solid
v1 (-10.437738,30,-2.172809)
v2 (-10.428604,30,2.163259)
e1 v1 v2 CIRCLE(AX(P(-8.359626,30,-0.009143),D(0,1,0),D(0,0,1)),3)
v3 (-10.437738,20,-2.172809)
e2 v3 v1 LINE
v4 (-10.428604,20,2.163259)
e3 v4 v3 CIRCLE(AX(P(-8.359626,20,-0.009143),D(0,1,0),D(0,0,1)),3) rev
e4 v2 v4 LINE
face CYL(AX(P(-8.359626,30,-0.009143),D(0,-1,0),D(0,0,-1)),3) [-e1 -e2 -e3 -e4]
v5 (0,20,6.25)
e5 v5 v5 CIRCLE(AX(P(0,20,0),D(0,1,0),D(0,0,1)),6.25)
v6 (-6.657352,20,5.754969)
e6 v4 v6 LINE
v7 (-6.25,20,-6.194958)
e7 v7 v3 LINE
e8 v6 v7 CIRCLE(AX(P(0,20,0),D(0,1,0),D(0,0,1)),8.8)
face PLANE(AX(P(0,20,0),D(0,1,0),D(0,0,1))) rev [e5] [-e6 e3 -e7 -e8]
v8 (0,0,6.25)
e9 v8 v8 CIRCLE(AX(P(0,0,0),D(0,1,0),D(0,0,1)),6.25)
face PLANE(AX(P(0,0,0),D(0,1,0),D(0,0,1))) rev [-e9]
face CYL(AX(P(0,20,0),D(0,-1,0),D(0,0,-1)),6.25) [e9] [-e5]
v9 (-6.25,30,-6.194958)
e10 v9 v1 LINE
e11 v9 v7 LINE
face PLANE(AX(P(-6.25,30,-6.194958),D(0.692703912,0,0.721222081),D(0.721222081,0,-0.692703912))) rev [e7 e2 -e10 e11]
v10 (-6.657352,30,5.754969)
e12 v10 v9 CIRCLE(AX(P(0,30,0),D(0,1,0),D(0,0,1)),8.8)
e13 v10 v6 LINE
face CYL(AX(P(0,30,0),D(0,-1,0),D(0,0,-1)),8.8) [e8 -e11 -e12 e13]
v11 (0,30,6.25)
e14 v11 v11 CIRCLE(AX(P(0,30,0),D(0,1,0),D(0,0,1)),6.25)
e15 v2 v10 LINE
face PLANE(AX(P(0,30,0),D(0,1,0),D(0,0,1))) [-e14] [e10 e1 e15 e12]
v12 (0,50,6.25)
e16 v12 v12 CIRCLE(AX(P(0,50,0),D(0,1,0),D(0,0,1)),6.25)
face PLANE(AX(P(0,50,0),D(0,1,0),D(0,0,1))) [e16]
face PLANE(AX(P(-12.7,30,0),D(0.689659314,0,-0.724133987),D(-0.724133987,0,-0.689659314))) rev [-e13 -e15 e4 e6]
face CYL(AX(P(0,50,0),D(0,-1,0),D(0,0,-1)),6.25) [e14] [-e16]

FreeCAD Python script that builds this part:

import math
import FreeCAD as App
import Part
import Sketcher

V = App.Vector
Q = App.Units.Quantity


def edges_at(feature, points):
    """Names of the edges that pass closest to the given points."""
    edges = feature.Shape.Edges
    near = lambda p: min(range(len(edges)), key=lambda i: edges[i].distToShape(Part.Vertex(*p))[0])
    return sorted({f"Edge{near(p) + 1}" for p in points})

doc = App.newDocument("Part")
body = doc.addObject("PartDesign::Body", "Body")

# Sketch on XZ plane
sketch1 = body.newObject("Sketcher::SketchObject", "Sketch")
sketch1.AttachmentSupport = (doc.getObject("XZ_Plane"), [""])
sketch1.MapMode = "FlatFace"
sketch1.addGeometry(Part.Circle(V(0, 0, 0), V(0, 0, 1), 6), False)
sketch1.addConstraint([
    Sketcher.Constraint("Coincident", 0, 3, -1, 1),
    Sketcher.Constraint("Diameter", 0, Q("12.5 mm")),
])
pad1 = body.newObject("PartDesign::Pad", "Pad")
pad1.Profile = sketch1
pad1.Length = 20
pad1.Reversed = True

# Sketch on XZ plane
sketch2 = body.newObject("Sketcher::SketchObject", "Sketch001")
sketch2.AttachmentSupport = (doc.getObject("XZ_Plane"), [""])
sketch2.MapMode = "FlatFace"
sketch2.AttachmentOffset = App.Placement(V(0, 0, -20), App.Rotation())
sketch2.addGeometry([
    Part.LineSegment(V(-6, -6, 0), V(-13, 0, 0)),
    Part.LineSegment(V(-13, 0, 0), V(-7, 6, 0)),
    Part.ArcOfCircle(Part.Circle(V(0, 0, 0), V(0, 0, 1), 9), math.radians(-135), math.radians(139)),
], False)
sketch2.addConstraint([
    Sketcher.Constraint("Coincident", 0, 2, 1, 1),
    Sketcher.Constraint("Coincident", 1, 2, 2, 2),
    Sketcher.Constraint("Coincident", 2, 1, 0, 1),
    Sketcher.Constraint("Coincident", 2, 3, -1, 1),
    Sketcher.Constraint("PointOnObject", 0, 2, -1),
    Sketcher.Constraint("Radius", 2, Q("8.8 mm")),
    Sketcher.Constraint("DistanceX", 0, 2, -1, 1, Q("12.7 mm")),
    Sketcher.Constraint("DistanceX", 2, 1, -1, 1, Q("6.25 mm")),
    Sketcher.Constraint("DistanceX", 1, 2, -1, 1, Q("6.657352 mm")),
])
pad2 = body.newObject("PartDesign::Pad", "Pad001")
pad2.Profile = sketch2
pad2.Length = 10
pad2.Reversed = True
doc.recompute()

fillet = body.newObject("PartDesign::Fillet", "Fillet")
fillet.Base = (pad2, edges_at(pad2, [(-12.7, 25, 0)]))
fillet.Radius = 3

# Sketch on XZ plane
sketch3 = body.newObject("Sketcher::SketchObject", "Sketch002")
sketch3.AttachmentSupport = (doc.getObject("XZ_Plane"), [""])
sketch3.MapMode = "FlatFace"
sketch3.AttachmentOffset = App.Placement(V(0, 0, -30), App.Rotation())
sketch3.addGeometry(Part.Circle(V(0, 0, 0), V(0, 0, 1), 6), False)
sketch3.addConstraint([
    Sketcher.Constraint("Coincident", 0, 3, -1, 1),
    Sketcher.Constraint("Diameter", 0, Q("12.5 mm")),
])
pad3 = body.newObject("PartDesign::Pad", "Pad002")
pad3.Profile = sketch3
pad3.Length = 20
pad3.Reversed = True

doc.recompute()
